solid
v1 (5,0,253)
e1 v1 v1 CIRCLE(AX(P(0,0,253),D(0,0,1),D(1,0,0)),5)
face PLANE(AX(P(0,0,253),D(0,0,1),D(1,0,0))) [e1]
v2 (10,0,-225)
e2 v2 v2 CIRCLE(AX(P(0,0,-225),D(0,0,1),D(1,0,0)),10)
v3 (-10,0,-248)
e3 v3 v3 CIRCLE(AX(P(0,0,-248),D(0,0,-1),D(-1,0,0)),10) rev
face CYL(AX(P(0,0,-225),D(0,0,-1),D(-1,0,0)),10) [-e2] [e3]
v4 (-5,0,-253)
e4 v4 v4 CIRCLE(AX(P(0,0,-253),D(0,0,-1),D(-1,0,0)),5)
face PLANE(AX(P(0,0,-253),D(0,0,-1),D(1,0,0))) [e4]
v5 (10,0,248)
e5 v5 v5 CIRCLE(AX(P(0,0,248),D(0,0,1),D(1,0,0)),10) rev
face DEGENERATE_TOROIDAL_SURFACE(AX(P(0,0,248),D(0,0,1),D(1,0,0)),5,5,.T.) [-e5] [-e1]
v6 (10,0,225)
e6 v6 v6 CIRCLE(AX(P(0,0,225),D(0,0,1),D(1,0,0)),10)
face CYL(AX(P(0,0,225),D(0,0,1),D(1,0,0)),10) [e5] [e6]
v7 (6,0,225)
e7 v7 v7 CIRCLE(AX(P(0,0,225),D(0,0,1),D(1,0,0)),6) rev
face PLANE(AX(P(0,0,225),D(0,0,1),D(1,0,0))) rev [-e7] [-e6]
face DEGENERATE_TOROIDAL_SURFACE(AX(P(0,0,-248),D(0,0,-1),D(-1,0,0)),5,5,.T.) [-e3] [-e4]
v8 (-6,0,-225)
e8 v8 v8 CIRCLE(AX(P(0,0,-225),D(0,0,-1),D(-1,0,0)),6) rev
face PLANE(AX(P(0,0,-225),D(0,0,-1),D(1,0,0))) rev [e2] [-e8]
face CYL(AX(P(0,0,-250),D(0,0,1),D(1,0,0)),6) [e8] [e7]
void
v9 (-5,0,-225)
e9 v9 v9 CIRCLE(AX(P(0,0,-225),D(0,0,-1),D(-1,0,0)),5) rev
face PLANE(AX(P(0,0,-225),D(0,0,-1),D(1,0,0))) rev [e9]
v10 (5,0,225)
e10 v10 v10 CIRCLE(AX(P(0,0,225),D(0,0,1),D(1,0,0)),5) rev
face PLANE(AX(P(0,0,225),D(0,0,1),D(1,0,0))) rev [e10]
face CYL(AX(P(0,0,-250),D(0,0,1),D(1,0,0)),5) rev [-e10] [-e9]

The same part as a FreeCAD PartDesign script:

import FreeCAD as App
import Part
import Sketcher
Q = App.Units.Quantity


def edges_at(feature, points):
    """Names of the edges that pass closest to the given points."""
    edges = feature.Shape.Edges
    near = lambda p: min(range(len(edges)), key=lambda i: edges[i].distToShape(Part.Vertex(*p))[0])
    return sorted({f"Edge{near(p) + 1}" for p in points})

doc = App.newDocument("Part")
params = doc.addObject("Spreadsheet::Sheet", "Params")
for row, (alias, value) in enumerate([
    ("sketch1_diameter", "12 mm"),
    ("sketch1_diameter2", "10 mm"),
    ("pad1_length", "250 mm"),
    ("pad1_length2", "250 mm"),
    ("sketch2_diameter", "20 mm"),
    ("pad2_length", "28 mm"),
    ("fillet_radius", "5 mm"),
    ("fillet2_radius", "5 mm"),
], start=1):
    params.set(f"A{row}", alias)
    params.set(f"B{row}", "=" + value)
    params.setAlias(f"B{row}", alias)

body = doc.addObject("PartDesign::Body", "Body")

sketch1 = body.newObject("Sketcher::SketchObject", "Sketch")
sketch1.AttachmentSupport = (doc.getObject("XY_Plane"), [""])
sketch1.MapMode = "FlatFace"
sketch1.addGeometry([
    Part.Circle(App.Vector(0, 0, 0), App.Vector(0, 0, 1), 6),
    Part.Circle(App.Vector(0, 0, 0), App.Vector(0, 0, 1), 5),
], False)
sketch1.addConstraint([
    Sketcher.Constraint("Coincident", 0, 3, -1, 1),
    Sketcher.Constraint("Coincident", 1, 3, -1, 1),
    Sketcher.Constraint("Diameter", 0, Q("12 mm")),
    Sketcher.Constraint("Diameter", 1, Q("10 mm")),
])
sketch1.setExpression("Constraints[2]", "Params.sketch1_diameter")
sketch1.setExpression("Constraints[3]", "Params.sketch1_diameter2")
pad1 = body.newObject("PartDesign::Pad", "Pad")
pad1.Profile = sketch1
pad1.Type = "TwoLengths"
pad1.setExpression("Length", "Params.pad1_length")
pad1.setExpression("Length2", "Params.pad1_length2")

sketch2 = body.newObject("Sketcher::SketchObject", "Sketch001")
sketch2.AttachmentSupport = (doc.getObject("XY_Plane"), [""])
sketch2.MapMode = "FlatFace"
sketch2.AttachmentOffset = App.Placement(App.Vector(0, 0, 225), App.Rotation())
sketch2.addGeometry(Part.Circle(App.Vector(0, 0, 0), App.Vector(0, 0, 1), 10), False)
sketch2.addConstraint([
    Sketcher.Constraint("Coincident", 0, 3, -1, 1),
    Sketcher.Constraint("Diameter", 0, Q("20 mm")),
])
sketch2.setExpression("Constraints[1]", "Params.sketch2_diameter")
pad2 = body.newObject("PartDesign::Pad", "Pad001")
pad2.Profile = sketch2
pad2.setExpression("Length", "Params.pad2_length")
doc.recompute()

fillet = body.newObject("PartDesign::Fillet", "Fillet")
fillet.Base = (pad2, edges_at(pad2, [(-10, 0, 253)]))
fillet.setExpression("Radius", "Params.fillet_radius")
doc.recompute()

mirrored = body.newObject("PartDesign::Mirrored", "Mirrored")
mirrored.Originals = [pad2]
mirrored.MirrorPlane = (doc.getObject("XY_Plane"), [""])
body.Tip = mirrored
doc.recompute()

fillet2 = body.newObject("PartDesign::Fillet", "Fillet001")
fillet2.Base = (mirrored, edges_at(mirrored, [(-10, 0, -253)]))
fillet2.setExpression("Radius", "Params.fillet2_radius")

doc.recompute()
